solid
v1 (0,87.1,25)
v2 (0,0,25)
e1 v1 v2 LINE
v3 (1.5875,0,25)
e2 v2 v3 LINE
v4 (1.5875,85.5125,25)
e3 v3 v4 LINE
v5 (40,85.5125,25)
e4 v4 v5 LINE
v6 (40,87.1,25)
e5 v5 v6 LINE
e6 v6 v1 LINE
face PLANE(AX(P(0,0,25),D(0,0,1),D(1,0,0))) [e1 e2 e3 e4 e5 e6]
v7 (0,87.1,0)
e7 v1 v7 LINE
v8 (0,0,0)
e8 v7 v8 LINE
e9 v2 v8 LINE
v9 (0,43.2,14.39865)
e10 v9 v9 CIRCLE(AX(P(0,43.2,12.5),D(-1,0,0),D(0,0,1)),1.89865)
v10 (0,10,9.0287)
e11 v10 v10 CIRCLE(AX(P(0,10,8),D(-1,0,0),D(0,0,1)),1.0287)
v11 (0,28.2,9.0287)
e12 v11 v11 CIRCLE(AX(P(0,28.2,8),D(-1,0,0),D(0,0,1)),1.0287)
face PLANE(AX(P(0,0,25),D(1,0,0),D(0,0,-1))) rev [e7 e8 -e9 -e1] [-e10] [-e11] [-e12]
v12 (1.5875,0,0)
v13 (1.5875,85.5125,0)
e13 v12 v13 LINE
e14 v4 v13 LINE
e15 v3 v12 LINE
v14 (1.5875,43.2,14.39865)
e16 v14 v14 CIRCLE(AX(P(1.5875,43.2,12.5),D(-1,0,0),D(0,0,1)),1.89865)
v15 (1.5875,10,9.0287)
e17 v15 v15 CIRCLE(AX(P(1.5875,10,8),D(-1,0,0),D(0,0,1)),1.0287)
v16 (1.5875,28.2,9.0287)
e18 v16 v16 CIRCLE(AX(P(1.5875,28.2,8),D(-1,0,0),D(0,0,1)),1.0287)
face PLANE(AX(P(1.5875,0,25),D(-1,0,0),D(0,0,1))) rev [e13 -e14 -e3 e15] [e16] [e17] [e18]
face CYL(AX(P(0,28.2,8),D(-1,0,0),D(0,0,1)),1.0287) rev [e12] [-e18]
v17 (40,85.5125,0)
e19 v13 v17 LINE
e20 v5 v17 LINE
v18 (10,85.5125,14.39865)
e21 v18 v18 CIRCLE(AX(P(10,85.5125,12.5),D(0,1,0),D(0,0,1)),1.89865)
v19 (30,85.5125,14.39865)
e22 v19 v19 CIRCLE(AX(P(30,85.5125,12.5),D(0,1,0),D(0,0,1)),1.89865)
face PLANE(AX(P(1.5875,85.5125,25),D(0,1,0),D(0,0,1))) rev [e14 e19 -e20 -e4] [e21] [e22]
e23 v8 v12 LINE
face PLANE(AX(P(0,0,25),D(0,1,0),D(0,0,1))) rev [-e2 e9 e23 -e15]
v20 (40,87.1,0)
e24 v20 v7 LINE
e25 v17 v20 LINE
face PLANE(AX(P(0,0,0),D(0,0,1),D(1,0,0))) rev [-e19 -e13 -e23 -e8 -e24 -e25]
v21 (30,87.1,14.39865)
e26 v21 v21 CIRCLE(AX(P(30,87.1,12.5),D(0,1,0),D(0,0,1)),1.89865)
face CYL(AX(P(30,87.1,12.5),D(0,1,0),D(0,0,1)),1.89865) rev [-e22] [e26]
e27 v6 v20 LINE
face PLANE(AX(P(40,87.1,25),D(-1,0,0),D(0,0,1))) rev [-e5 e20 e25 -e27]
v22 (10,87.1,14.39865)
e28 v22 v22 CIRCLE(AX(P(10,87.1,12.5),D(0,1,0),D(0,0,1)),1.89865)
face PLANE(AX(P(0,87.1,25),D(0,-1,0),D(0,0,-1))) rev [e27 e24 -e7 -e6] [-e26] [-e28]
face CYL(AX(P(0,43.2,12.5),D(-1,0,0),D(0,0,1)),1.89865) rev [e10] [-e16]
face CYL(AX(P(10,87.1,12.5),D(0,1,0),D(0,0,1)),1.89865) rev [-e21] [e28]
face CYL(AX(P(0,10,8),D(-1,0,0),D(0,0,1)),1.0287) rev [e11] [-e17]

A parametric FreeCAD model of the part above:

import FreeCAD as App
import Part
import Sketcher

V = App.Vector


def add_polygon(sketch, points):
    """Adds a closed chain of lines whose ends are joined by coincident constraints."""
    first, n = sketch.GeometryCount, len(points)
    for a, b in zip(points, points[1:] + points[:1]):
        sketch.addGeometry(Part.LineSegment(App.Vector(*a, 0), App.Vector(*b, 0)), False)
    for i in range(n):
        sketch.addConstraint(Sketcher.Constraint("Coincident", first + i, 2, first + (i + 1) % n, 1))

doc = App.newDocument("Part")
params = doc.addObject("Spreadsheet::Sheet", "Params")
for row, (alias, value) in enumerate([
    ("sketch1_width", "40 mm"),
    ("sketch1_height", "87.1 mm"),
    ("pad1_length", "25 mm"),
    ("hole_diameter", "3.7973 mm"),
    ("hole2_diameter", "2.0574 mm"),
    ("hole3_diameter", "3.7973 mm"),
], start=1):
    params.set(f"A{row}", alias)
    params.set(f"B{row}", "=" + value)
    params.setAlias(f"B{row}", alias)

body = doc.addObject("PartDesign::Body", "Body")

# Sketch on XY plane
sketch1 = doc.addObject("Sketcher::SketchObject", "Sketch")
body.addObject(sketch1)
sketch1.AttachmentSupport = (doc.XY_Plane, [""])
sketch1.MapMode = "FlatFace"
add_polygon(sketch1, [(0, 87.1), (0, 0), (1.5875, 0), (1.5875, 85.5125), (40, 85.5125), (40, 87.1)])  # lines 0-5
sketch1.addConstraint([
    Sketcher.Constraint("Vertical", 0),
    Sketcher.Constraint("Horizontal", 1),
    Sketcher.Constraint("Vertical", 2),
    Sketcher.Constraint("Horizontal", 3),
    Sketcher.Constraint("Vertical", 4),
    Sketcher.Constraint("Horizontal", 5),
    Sketcher.Constraint("Coincident", 0, 2, -1, 1),
    Sketcher.Constraint("Equal", 1, 4),
    Sketcher.Constraint("DistanceX", 5, 2, 5, 1, 40.0),
    Sketcher.Constraint("DistanceY", 0, 2, 0, 1, 87.1),
    Sketcher.Constraint("DistanceX", 1, 1, 1, 2, 1.5875),
])
sketch1.setExpression("Constraints[14]", "Params.sketch1_width")
sketch1.setExpression("Constraints[15]", "Params.sketch1_height")
pad1 = doc.addObject("PartDesign::Pad", "Pad")
body.addObject(pad1)
pad1.Profile = sketch1
pad1.setExpression("Length", "Params.pad1_length")

# Sketch on XZ plane
sketch2 = doc.addObject("Sketcher::SketchObject", "Sketch001")
body.addObject(sketch2)
sketch2.AttachmentSupport = (doc.XZ_Plane, [""])
sketch2.MapMode = "FlatFace"
sketch2.AttachmentOffset = App.Placement(V(0, 0, -87.1), App.Rotation())
sketch2.addGeometry([
    Part.Circle(V(10, 12.5, 0), V(0, 0, 1), 1.89865),
    Part.Circle(V(30, 12.5, 0), V(0, 0, 1), 1.89865),
], False)
sketch2.addConstraint([
    Sketcher.Constraint("Equal", 0, 1),
    Sketcher.Constraint("Horizontal", 0, 3, 1, 3),
    Sketcher.Constraint("DistanceX", -1, 1, 0, 3, 10.0),
    Sketcher.Constraint("DistanceX", -1, 1, 1, 3, 30.0),
    Sketcher.Constraint("Diameter", 0, 3.7973),
    Sketcher.Constraint("DistanceY", -1, 1, 0, 3, 12.5),
])
doc.recompute()
hole = doc.addObject("PartDesign::Hole", "Hole")
body.addObject(hole)
hole.Profile = sketch2
hole.ThreadType = "None"
hole.setExpression("Diameter", "Params.hole_diameter")
hole.DepthType = "ThroughAll"
hole.Reversed = True

# Sketch on YZ plane
sketch3 = doc.addObject("Sketcher::SketchObject", "Sketch002")
body.addObject(sketch3)
sketch3.AttachmentSupport = (doc.YZ_Plane, [""])
sketch3.MapMode = "FlatFace"
sketch3.addGeometry([
    Part.Circle(V(10, 8, 0), V(0, 0, 1), 1.0287),
    Part.Circle(V(28.2, 8, 0), V(0, 0, 1), 1.0287),
], False)
sketch3.addConstraint([
    Sketcher.Constraint("Equal", 0, 1),
    Sketcher.Constraint("Horizontal", 0, 3, 1, 3),
    Sketcher.Constraint("DistanceX", -1, 1, 0, 3, 10.0),
    Sketcher.Constraint("DistanceY", -1, 1, 0, 3, 8.0),
    Sketcher.Constraint("Diameter", 0, 2.0574),
    Sketcher.Constraint("DistanceX", -1, 1, 1, 3, 28.2),
])
doc.recompute()
hole2 = doc.addObject("PartDesign::Hole", "Hole001")
body.addObject(hole2)
hole2.Profile = sketch3
hole2.ThreadType = "None"
hole2.setExpression("Diameter", "Params.hole2_diameter")
hole2.DepthType = "ThroughAll"
hole2.Reversed = True

# Sketch on YZ plane
sketch4 = doc.addObject("Sketcher::SketchObject", "Sketch003")
body.addObject(sketch4)
sketch4.AttachmentSupport = (doc.YZ_Plane, [""])
sketch4.MapMode = "FlatFace"
sketch4.addGeometry(Part.Circle(V(43.2, 12.5, 0), V(0, 0, 1), 1.89865), False)
sketch4.addConstraint([
    Sketcher.Constraint("Diameter", 0, 3.7973),
    Sketcher.Constraint("DistanceX", -1, 1, 0, 3, 43.2),
    Sketcher.Constraint("DistanceY", -1, 1, 0, 3, 12.5),
])
doc.recompute()
hole3 = doc.addObject("PartDesign::Hole", "Hole002")
body.addObject(hole3)
hole3.Profile = sketch4
hole3.ThreadType = "None"
hole3.setExpression("Diameter", "Params.hole3_diameter")
hole3.DepthType = "ThroughAll"
hole3.Reversed = True

doc.recompute()
